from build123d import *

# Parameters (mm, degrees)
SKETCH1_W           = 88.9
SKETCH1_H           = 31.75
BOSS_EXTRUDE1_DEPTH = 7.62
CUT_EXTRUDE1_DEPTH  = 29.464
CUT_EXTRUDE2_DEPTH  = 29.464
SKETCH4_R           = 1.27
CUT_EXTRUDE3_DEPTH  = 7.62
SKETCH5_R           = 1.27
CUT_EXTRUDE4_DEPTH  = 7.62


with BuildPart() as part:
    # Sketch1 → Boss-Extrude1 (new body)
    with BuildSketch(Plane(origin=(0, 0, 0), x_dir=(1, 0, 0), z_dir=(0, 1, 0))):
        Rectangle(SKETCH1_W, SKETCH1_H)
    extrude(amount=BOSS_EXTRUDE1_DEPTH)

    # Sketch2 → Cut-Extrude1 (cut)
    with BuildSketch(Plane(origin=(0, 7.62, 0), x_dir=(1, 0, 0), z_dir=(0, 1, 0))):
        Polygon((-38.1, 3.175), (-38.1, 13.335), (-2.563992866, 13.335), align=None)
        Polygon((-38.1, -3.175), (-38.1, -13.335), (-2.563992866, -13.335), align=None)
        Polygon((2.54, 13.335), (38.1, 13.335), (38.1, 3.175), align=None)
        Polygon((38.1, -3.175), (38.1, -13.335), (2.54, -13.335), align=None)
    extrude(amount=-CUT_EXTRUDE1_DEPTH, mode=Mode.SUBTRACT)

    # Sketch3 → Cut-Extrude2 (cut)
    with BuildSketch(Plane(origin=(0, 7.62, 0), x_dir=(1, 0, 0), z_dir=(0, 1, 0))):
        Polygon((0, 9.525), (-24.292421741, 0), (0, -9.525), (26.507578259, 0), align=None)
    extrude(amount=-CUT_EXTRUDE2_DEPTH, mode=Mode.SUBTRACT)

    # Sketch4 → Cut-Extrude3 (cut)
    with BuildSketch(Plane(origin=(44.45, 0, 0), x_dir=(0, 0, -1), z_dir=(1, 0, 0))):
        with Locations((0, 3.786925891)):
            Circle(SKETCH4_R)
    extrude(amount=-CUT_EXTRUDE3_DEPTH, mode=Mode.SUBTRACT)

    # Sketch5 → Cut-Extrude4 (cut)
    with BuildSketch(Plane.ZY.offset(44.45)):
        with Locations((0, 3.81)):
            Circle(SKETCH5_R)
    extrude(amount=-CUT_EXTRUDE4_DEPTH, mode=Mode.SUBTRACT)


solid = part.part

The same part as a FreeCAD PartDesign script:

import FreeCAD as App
import Part
import Sketcher

V = App.Vector
Q = App.Units.Quantity

doc = App.newDocument("Part")
body = doc.addObject("PartDesign::Body", "Body")

sketch1 = body.newObject("Sketcher::SketchObject", "Sketch")
sketch1.AttachmentSupport = (doc.getObject("XZ_Plane"), [""])
sketch1.MapMode = "FlatFace"
sketch1.addGeometry(Part.LineSegment(V(-44.45, -15.875, 0), V(-44.45, 15.875, 0)), False)
sketch1.addGeometry(Part.LineSegment(V(-44.45, 15.875, 0), V(44.45, 15.875, 0)), False)
sketch1.addGeometry(Part.LineSegment(V(44.45, 15.875, 0), V(44.45, -15.875, 0)), False)
sketch1.addGeometry(Part.LineSegment(V(44.45, -15.875, 0), V(-44.45, -15.875, 0)), False)
sketch1.addConstraint(Sketcher.Constraint("Coincident", 0, 2, 1, 1))
sketch1.addConstraint(Sketcher.Constraint("Coincident", 1, 2, 2, 1))
sketch1.addConstraint(Sketcher.Constraint("Coincident", 2, 2, 3, 1))
sketch1.addConstraint(Sketcher.Constraint("Coincident", 3, 2, 0, 1))
sketch1.addConstraint(Sketcher.Constraint("Vertical", 0))
sketch1.addConstraint(Sketcher.Constraint("Horizontal", 1))
sketch1.addConstraint(Sketcher.Constraint("Vertical", 2))
sketch1.addConstraint(Sketcher.Constraint("Horizontal", 3))
sketch1.addConstraint(Sketcher.Constraint("Symmetric", 0, 2, 2, 2, -1, 1))
sketch1.addConstraint(Sketcher.Constraint("DistanceX", 1, 1, 1, 2, Q("3.5 in")))
sketch1.addConstraint(Sketcher.Constraint("DistanceY", 0, 1, 0, 2, Q("1.25 in")))
pad1 = body.newObject("PartDesign::Pad", "Pad")
pad1.Profile = sketch1
pad1.Length = Q("0.3 in")
pad1.Reversed = True

sketch2 = body.newObject("Sketcher::SketchObject", "Sketch001")
sketch2.AttachmentSupport = (doc.getObject("XZ_Plane"), [""])
sketch2.MapMode = "FlatFace"
sketch2.AttachmentOffset = App.Placement(V(0, 0, -0.3 * 25.4), App.Rotation())
sketch2.addGeometry(Part.LineSegment(V(-38.1, -13.335, 0), V(-38.1, -3.175, 0)), False)
sketch2.addGeometry(Part.LineSegment(V(-38.1, -3.175, 0), V(-2.563993, -13.335, 0)), False)
sketch2.addGeometry(Part.LineSegment(V(-2.563993, -13.335, 0), V(-38.1, -13.335, 0)), False)
sketch2.addGeometry(Part.LineSegment(V(-38.1, 3.175, 0), V(-38.1, 13.335, 0)), False)
sketch2.addGeometry(Part.LineSegment(V(-38.1, 13.335, 0), V(-2.563993, 13.335, 0)), False)
sketch2.addGeometry(Part.LineSegment(V(-2.563993, 13.335, 0), V(-38.1, 3.175, 0)), False)
sketch2.addGeometry(Part.LineSegment(V(38.1, -13.335, 0), V(2.54, -13.335, 0)), False)
sketch2.addGeometry(Part.LineSegment(V(2.54, -13.335, 0), V(38.1, -3.175, 0)), False)
sketch2.addGeometry(Part.LineSegment(V(38.1, -3.175, 0), V(38.1, -13.335, 0)), False)
sketch2.addGeometry(Part.LineSegment(V(38.1, 13.335, 0), V(38.1, 3.175, 0)), False)
sketch2.addGeometry(Part.LineSegment(V(38.1, 3.175, 0), V(2.54, 13.335, 0)), False)
sketch2.addGeometry(Part.LineSegment(V(2.54, 13.335, 0), V(38.1, 13.335, 0)), False)
sketch2.addConstraint(Sketcher.Constraint("Coincident", 0, 2, 1, 1))
sketch2.addConstraint(Sketcher.Constraint("Coincident", 1, 2, 2, 1))
sketch2.addConstraint(Sketcher.Constraint("Coincident", 2, 2, 0, 1))
sketch2.addConstraint(Sketcher.Constraint("Coincident", 3, 2, 4, 1))
sketch2.addConstraint(Sketcher.Constraint("Coincident", 4, 2, 5, 1))
sketch2.addConstraint(Sketcher.Constraint("Coincident", 5, 2, 3, 1))
sketch2.addConstraint(Sketcher.Constraint("Coincident", 6, 2, 7, 1))
sketch2.addConstraint(Sketcher.Constraint("Coincident", 7, 2, 8, 1))
sketch2.addConstraint(Sketcher.Constraint("Coincident", 8, 2, 6, 1))
sketch2.addConstraint(Sketcher.Constraint("Coincident", 9, 2, 10, 1))
sketch2.addConstraint(Sketcher.Constraint("Coincident", 10, 2, 11, 1))
sketch2.addConstraint(Sketcher.Constraint("Coincident", 11, 2, 9, 1))
sketch2.addConstraint(Sketcher.Constraint("Vertical", 0))
sketch2.addConstraint(Sketcher.Constraint("Horizontal", 2))
sketch2.addConstraint(Sketcher.Constraint("Vertical", 3))
sketch2.addConstraint(Sketcher.Constraint("Horizontal", 4))
sketch2.addConstraint(Sketcher.Constraint("Horizontal", 6))
sketch2.addConstraint(Sketcher.Constraint("Vertical", 8))
sketch2.addConstraint(Sketcher.Constraint("Vertical", 9))
sketch2.addConstraint(Sketcher.Constraint("Horizontal", 11))
sketch2.addConstraint(Sketcher.Constraint("Symmetric", 5, 2, 7, 2, -1, 1))
sketch2.addConstraint(Sketcher.Constraint("Symmetric", 0, 2, 9, 2, -1, 1))
sketch2.addConstraint(Sketcher.Constraint("Symmetric", 0, 2, 7, 2, -2))
sketch2.addConstraint(Sketcher.Constraint("Symmetric", 1, 2, 4, 2, -1))
sketch2.addConstraint(Sketcher.Constraint("Symmetric", 6, 2, 10, 2, -1))
sketch2.addConstraint(Sketcher.Constraint("Horizontal", 2, 2, 6, 2))
sketch2.addConstraint(Sketcher.Constraint("DistanceX", 6, 2, 6, 1, Q("1.4 in")))
sketch2.addConstraint(Sketcher.Constraint("DistanceY", 0, 1, 0, 2, Q("0.4 in")))
sketch2.addConstraint(Sketcher.Constraint("DistanceX", 0, 2, 7, 2, Q("3 in")))
sketch2.addConstraint(Sketcher.Constraint("DistanceY", 0, 2, 3, 2, Q("0.65 in")))
sketch2.addConstraint(Sketcher.Constraint("Distance", 1, 36.959889))
pocket1 = body.newObject("PartDesign::Pocket", "Pocket")
pocket1.Profile = sketch2
pocket1.Length = Q("1.16 in")
pocket1.Reversed = True

sketch3 = body.newObject("Sketcher::SketchObject", "Sketch002")
sketch3.AttachmentSupport = (doc.getObject("XZ_Plane"), [""])
sketch3.MapMode = "FlatFace"
sketch3.AttachmentOffset = App.Placement(V(0, 0, -0.3 * 25.4), App.Rotation())
sketch3.addGeometry(Part.LineSegment(V(0, -9.525, 0), V(-24.292422, 0, 0)), False)
sketch3.addGeometry(Part.LineSegment(V(-24.292422, 0, 0), V(0, 9.525, 0)), False)
sketch3.addGeometry(Part.LineSegment(V(0, 9.525, 0), V(26.507578, 0, 0)), False)
sketch3.addGeometry(Part.LineSegment(V(26.507578, 0, 0), V(0, -9.525, 0)), False)
sketch3.addConstraint(Sketcher.Constraint("Coincident", 0, 2, 1, 1))
sketch3.addConstraint(Sketcher.Constraint("Coincident", 1, 2, 2, 1))
sketch3.addConstraint(Sketcher.Constraint("Coincident", 2, 2, 3, 1))
sketch3.addConstraint(Sketcher.Constraint("Coincident", 3, 2, 0, 1))
sketch3.addConstraint(Sketcher.Constraint("Symmetric", 1, 2, 3, 2, -1, 1))
sketch3.addConstraint(Sketcher.Constraint("PointOnObject", 0, 2, -1))
sketch3.addConstraint(Sketcher.Constraint("PointOnObject", 1, 2, -2))
sketch3.addConstraint(Sketcher.Constraint("PointOnObject", 2, 2, -1))
sketch3.addConstraint(Sketcher.Constraint("DistanceX", 0, 2, 2, 2, Q("2 in")))
sketch3.addConstraint(Sketcher.Constraint("DistanceY", 3, 2, 1, 2, Q("0.75 in")))
sketch3.addConstraint(Sketcher.Constraint("DistanceX", 0, 2, -1, 1, 24.292422))
pocket2 = body.newObject("PartDesign::Pocket", "Pocket001")
pocket2.Profile = sketch3
pocket2.Length = Q("1.16 in")
pocket2.Reversed = True

sketch4 = body.newObject("Sketcher::SketchObject", "Sketch003")
sketch4.AttachmentSupport = (doc.getObject("YZ_Plane"), [""])
sketch4.MapMode = "FlatFace"
sketch4.AttachmentOffset = App.Placement(V(0, 0, 1.75 * 25.4), App.Rotation())
sketch4.addGeometry(Part.Circle(V(3.786926, 0, 0), V(0, 0, 1), 1.27), False)
sketch4.addConstraint(Sketcher.Constraint("PointOnObject", 0, 3, -1))
sketch4.addConstraint(Sketcher.Constraint("Diameter", 0, Q("0.1 in")))
sketch4.addConstraint(Sketcher.Constraint("DistanceX", -1, 1, 0, 3, 3.786926))
pocket3 = body.newObject("PartDesign::Pocket", "Pocket002")
pocket3.Profile = sketch4
pocket3.Length = Q("0.3 in")

sketch5 = body.newObject("Sketcher::SketchObject", "Sketch004")
sketch5.AttachmentSupport = (doc.getObject("YZ_Plane"), [""])
sketch5.MapMode = "FlatFace"
sketch5.AttachmentOffset = App.Placement(V(0, 0, -1.75 * 25.4), App.Rotation())
sketch5.addGeometry(Part.Circle(V(3.81, 0, 0), V(0, 0, 1), 1.27), False)
sketch5.addConstraint(Sketcher.Constraint("PointOnObject", 0, 3, -1))
sketch5.addConstraint(Sketcher.Constraint("Diameter", 0, Q("0.1 in")))
sketch5.addConstraint(Sketcher.Constraint("DistanceX", -1, 1, 0, 3, Q("0.15 in")))
pocket4 = body.newObject("PartDesign::Pocket", "Pocket003")
pocket4.Profile = sketch5
pocket4.Length = Q("0.3 in")
pocket4.Reversed = True

doc.recompute()
